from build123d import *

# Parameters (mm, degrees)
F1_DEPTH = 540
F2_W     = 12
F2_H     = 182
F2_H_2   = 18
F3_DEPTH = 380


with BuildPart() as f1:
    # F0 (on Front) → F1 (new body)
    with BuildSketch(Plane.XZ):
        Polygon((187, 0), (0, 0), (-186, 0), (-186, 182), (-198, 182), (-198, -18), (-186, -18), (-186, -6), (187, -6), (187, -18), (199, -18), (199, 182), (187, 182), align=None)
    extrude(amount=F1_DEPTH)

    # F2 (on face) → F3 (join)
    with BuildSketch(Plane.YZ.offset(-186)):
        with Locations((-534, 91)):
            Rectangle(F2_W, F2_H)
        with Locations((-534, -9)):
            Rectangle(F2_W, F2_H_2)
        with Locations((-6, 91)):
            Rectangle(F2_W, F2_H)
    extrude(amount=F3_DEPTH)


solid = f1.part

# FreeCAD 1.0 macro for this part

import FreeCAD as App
import Part
import Sketcher

V = App.Vector
Q = App.Units.Quantity


def add_polygon(sketch, points):
    """Adds a closed chain of lines whose ends are joined by coincident constraints."""
    first, n = sketch.GeometryCount, len(points)
    for a, b in zip(points, points[1:] + points[:1]):
        sketch.addGeometry(Part.LineSegment(App.Vector(*a, 0), App.Vector(*b, 0)), False)
    for i in range(n):
        sketch.addConstraint(Sketcher.Constraint("Coincident", first + i, 2, first + (i + 1) % n, 1))

doc = App.newDocument("Part")
body = doc.addObject("PartDesign::Body", "Body")

sketch1 = body.newObject("Sketcher::SketchObject", "Sketch")
sketch1.AttachmentSupport = (doc.getObject("XZ_Plane"), [""])
sketch1.MapMode = "FlatFace"
add_polygon(sketch1, [(187, 0), (-186, 0), (-186, 182), (-198, 182), (-198, -18), (-186, -18), (-186, -6), (187, -6), (187, -18), (199, -18), (199, 182), (187, 182)])
sketch1.addConstraint([
    Sketcher.Constraint("Horizontal", 0),
    Sketcher.Constraint("Vertical", 1),
    Sketcher.Constraint("Horizontal", 2),
    Sketcher.Constraint("Vertical", 3),
    Sketcher.Constraint("Horizontal", 4),
    Sketcher.Constraint("Vertical", 5),
    Sketcher.Constraint("Horizontal", 6),
    Sketcher.Constraint("Vertical", 7),
    Sketcher.Constraint("Horizontal", 8),
    Sketcher.Constraint("Vertical", 9),
    Sketcher.Constraint("Horizontal", 10),
    Sketcher.Constraint("Vertical", 11),
    Sketcher.Constraint("PointOnObject", 0, 2, -1),
    Sketcher.Constraint("Horizontal", 4, 2, 7, 2),
    Sketcher.Constraint("Horizontal", 2, 2, 9, 2),
    Sketcher.Constraint("Vertical", 1, 2, 4, 2),
    Sketcher.Constraint("Vertical", 7, 2, 10, 2),
    Sketcher.Constraint("Equal", 4, 8),
    Sketcher.Constraint("Equal", 10, 5),
    Sketcher.Constraint("DistanceX", 0, 2, 0, 1, Q("373 mm")),
    Sketcher.Constraint("DistanceX", 2, 2, 2, 1, Q("12 mm")),
    Sketcher.Constraint("DistanceY", 1, 1, 1, 2, Q("182 mm")),
    Sketcher.Constraint("DistanceY", 3, 2, 3, 1, Q("200 mm")),
    Sketcher.Constraint("DistanceX", 0, 2, -1, 1, Q("186 mm")),
])
pad1 = body.newObject("PartDesign::Pad", "Pad")
pad1.Profile = sketch1
pad1.Length = 540

sketch2 = body.newObject("Sketcher::SketchObject", "Sketch001")
sketch2.AttachmentSupport = (doc.getObject("YZ_Plane"), [""])
sketch2.MapMode = "FlatFace"
sketch2.AttachmentOffset = App.Placement(V(0, 0, -186), App.Rotation())
add_polygon(sketch2, [(-540, 182), (-540, -18), (-528, -18), (-528, 182)])
add_polygon(sketch2, [(-12, 182), (-12, 0), (0, 0), (0, 182)])
sketch2.addConstraint([
    Sketcher.Constraint("Vertical", 0),
    Sketcher.Constraint("Horizontal", 1),
    Sketcher.Constraint("Vertical", 2),
    Sketcher.Constraint("Horizontal", 3),
    Sketcher.Constraint("Vertical", 4),
    Sketcher.Constraint("Horizontal", 5),
    Sketcher.Constraint("Vertical", 6),
    Sketcher.Constraint("Horizontal", 7),
    Sketcher.Constraint("Coincident", 5, 2, -1, 1),
    Sketcher.Constraint("Horizontal", 3, 2, 6, 2),
    Sketcher.Constraint("Equal", 3, 5),
    Sketcher.Constraint("DistanceX", 1, 1, 1, 2, Q("12 mm")),
    Sketcher.Constraint("DistanceY", 0, 2, 0, 1, Q("200 mm")),
    Sketcher.Constraint("DistanceY", 4, 2, 4, 1, Q("182 mm")),
    Sketcher.Constraint("DistanceX", 0, 2, -1, 1, Q("540 mm")),
])
pad2 = body.newObject("PartDesign::Pad", "Pad001")
pad2.Profile = sketch2
pad2.Length = 380

doc.recompute()
